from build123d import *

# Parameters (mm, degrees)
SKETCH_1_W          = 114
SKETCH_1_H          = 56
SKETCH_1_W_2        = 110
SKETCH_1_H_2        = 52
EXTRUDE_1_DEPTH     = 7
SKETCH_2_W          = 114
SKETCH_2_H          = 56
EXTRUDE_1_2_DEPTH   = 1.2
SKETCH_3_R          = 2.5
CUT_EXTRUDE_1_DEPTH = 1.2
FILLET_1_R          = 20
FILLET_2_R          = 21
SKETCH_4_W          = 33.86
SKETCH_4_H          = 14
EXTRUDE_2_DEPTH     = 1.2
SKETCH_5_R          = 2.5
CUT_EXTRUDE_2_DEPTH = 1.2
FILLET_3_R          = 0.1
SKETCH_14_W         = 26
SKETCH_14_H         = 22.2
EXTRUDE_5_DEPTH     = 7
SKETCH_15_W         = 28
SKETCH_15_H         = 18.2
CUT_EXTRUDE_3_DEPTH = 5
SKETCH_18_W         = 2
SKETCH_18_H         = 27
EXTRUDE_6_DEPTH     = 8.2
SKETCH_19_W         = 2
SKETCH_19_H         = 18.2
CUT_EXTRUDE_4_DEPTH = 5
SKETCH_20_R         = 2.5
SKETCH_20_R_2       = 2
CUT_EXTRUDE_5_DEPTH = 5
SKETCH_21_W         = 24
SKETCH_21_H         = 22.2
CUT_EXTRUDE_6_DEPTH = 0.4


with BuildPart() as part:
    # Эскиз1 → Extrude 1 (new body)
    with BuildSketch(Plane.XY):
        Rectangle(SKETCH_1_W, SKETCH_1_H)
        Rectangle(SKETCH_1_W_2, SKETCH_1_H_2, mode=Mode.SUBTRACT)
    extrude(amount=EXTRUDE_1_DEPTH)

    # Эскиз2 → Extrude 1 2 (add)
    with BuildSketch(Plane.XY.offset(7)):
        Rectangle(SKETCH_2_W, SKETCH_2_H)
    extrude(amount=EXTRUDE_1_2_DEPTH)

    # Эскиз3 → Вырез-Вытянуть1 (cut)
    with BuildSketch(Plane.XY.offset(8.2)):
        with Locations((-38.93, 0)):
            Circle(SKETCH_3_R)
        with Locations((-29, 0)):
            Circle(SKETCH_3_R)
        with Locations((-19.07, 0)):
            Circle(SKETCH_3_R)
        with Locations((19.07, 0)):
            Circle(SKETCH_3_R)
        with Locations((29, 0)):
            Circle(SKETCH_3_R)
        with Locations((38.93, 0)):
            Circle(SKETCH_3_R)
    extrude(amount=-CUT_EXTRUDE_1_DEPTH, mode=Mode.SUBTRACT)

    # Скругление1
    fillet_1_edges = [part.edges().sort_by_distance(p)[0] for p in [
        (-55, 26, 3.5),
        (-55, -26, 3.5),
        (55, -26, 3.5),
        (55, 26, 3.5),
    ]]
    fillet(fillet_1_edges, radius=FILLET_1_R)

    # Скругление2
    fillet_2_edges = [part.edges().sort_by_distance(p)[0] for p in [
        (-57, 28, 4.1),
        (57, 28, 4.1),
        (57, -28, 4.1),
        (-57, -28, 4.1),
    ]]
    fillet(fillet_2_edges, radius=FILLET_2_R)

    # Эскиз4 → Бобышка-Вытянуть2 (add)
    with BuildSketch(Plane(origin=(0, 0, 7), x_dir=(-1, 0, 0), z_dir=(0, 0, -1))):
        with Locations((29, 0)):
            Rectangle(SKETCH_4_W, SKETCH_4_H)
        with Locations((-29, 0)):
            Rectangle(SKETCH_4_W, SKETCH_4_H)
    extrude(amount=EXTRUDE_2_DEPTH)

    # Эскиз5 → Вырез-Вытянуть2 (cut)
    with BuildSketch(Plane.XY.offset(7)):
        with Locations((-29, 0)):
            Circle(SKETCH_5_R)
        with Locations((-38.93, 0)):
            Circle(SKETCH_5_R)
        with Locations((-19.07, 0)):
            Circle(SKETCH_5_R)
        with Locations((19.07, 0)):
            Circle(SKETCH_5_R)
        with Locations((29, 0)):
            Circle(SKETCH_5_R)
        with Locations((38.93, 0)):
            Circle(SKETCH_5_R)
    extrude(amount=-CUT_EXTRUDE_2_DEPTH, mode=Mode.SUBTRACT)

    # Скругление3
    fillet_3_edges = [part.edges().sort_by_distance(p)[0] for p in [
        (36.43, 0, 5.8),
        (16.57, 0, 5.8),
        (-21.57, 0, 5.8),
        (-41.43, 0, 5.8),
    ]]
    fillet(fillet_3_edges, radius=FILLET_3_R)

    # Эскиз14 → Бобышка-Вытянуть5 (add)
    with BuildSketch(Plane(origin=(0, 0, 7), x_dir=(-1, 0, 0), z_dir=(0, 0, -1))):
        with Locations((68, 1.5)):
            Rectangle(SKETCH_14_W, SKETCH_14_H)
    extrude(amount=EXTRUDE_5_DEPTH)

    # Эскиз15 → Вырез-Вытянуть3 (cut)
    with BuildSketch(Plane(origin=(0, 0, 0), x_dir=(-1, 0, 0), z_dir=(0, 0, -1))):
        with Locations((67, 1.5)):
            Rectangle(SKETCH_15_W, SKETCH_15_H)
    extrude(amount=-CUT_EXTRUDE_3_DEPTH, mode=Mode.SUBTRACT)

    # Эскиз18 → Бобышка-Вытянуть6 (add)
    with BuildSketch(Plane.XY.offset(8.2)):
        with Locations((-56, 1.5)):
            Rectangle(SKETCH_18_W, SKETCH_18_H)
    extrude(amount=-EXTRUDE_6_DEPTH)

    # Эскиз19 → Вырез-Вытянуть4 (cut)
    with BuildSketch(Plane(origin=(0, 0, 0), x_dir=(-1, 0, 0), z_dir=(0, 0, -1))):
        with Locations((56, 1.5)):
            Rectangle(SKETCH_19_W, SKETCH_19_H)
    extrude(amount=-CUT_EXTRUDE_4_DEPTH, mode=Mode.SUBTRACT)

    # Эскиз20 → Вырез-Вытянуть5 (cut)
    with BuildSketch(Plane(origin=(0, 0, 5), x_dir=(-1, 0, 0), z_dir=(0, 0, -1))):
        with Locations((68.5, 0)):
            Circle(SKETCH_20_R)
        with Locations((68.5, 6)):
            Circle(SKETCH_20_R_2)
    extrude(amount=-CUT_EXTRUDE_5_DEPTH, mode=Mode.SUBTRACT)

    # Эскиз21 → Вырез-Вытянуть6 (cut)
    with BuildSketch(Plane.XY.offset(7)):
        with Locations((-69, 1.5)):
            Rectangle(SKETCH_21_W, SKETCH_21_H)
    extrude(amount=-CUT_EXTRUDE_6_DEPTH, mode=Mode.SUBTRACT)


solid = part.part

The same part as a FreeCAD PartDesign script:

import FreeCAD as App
import Part
import Sketcher


def edges_at(feature, points):
    """Names of the edges that pass closest to the given points."""
    edges = feature.Shape.Edges
    near = lambda p: min(range(len(edges)), key=lambda i: edges[i].distToShape(Part.Vertex(*p))[0])
    return sorted({f"Edge{near(p) + 1}" for p in points})


def add_polygon(sketch, points):
    """Adds a closed chain of lines whose ends are joined by coincident constraints."""
    first, n = sketch.GeometryCount, len(points)
    for a, b in zip(points, points[1:] + points[:1]):
        sketch.addGeometry(Part.LineSegment(App.Vector(*a, 0), App.Vector(*b, 0)), False)
    for i in range(n):
        sketch.addConstraint(Sketcher.Constraint("Coincident", first + i, 2, first + (i + 1) % n, 1))

doc = App.newDocument("Part")
params = doc.addObject("Spreadsheet::Sheet", "Params")
for row, (alias, value) in enumerate([
    ("sketch1_width", "114 mm"),
    ("sketch1_width2", "110 mm"),
    ("sketch1_height", "56 mm"),
    ("sketch1_height2", "52 mm"),
    ("pad1_length", "7 mm"),
    ("sketch2_width", "114 mm"),
    ("sketch2_height", "56 mm"),
    ("pad2_length", "1.2 mm"),
    ("sketch3_diameter", "5 mm"),
    ("pocket1_length", "1.2 mm"),
    ("fillet_radius", "20 mm"),
    ("fillet2_radius", "21 mm"),
    ("sketch4_height", "14 mm"),
    ("sketch4_width", "33.86 mm"),
    ("pad3_length", "1.2 mm"),
    ("sketch5_diameter", "5 mm"),
    ("pocket2_length", "1.2 mm"),
    ("fillet3_radius", "0.1 mm"),
    ("sketch6_width", "26 mm"),
    ("sketch6_height", "22.2 mm"),
    ("pad4_length", "7 mm"),
    ("sketch7_width", "28 mm"),
    ("sketch7_height", "18.2 mm"),
    ("pocket3_length", "5 mm"),
    ("sketch8_width", "2 mm"),
    ("sketch8_height", "27 mm"),
    ("pad5_length", "8.2 mm"),
    ("sketch9_width", "2 mm"),
    ("sketch9_height", "18.2 mm"),
    ("pocket4_length", "5 mm"),
    ("sketch10_diameter", "5 mm"),
    ("sketch10_diameter2", "4 mm"),
    ("pocket5_length", "5 mm"),
    ("sketch11_width", "24 mm"),
    ("sketch11_height", "22.2 mm"),
    ("pocket6_length", "0.4 mm"),
], start=1):
    params.set(f"A{row}", alias)
    params.set(f"B{row}", "=" + value)
    params.setAlias(f"B{row}", alias)

body = doc.addObject("PartDesign::Body", "Body")

# Sketch on XY plane
sketch1 = body.newObject("Sketcher::SketchObject", "Sketch")
sketch1.AttachmentSupport = (doc.getObject("XY_Plane"), [""])
sketch1.MapMode = "FlatFace"
add_polygon(sketch1, [(-57, 28), (-57, -28), (57, -28), (57, 28)])  # lines 0-3
add_polygon(sketch1, [(55, -26), (-55, -26), (-55, 26), (55, 26)])  # lines 4-7
sketch1.addConstraint([
    Sketcher.Constraint("Vertical", 0),
    Sketcher.Constraint("Horizontal", 1),
    Sketcher.Constraint("Vertical", 2),
    Sketcher.Constraint("Horizontal", 3),
    Sketcher.Constraint("Horizontal", 4),
    Sketcher.Constraint("Vertical", 5),
    Sketcher.Constraint("Horizontal", 6),
    Sketcher.Constraint("Vertical", 7),
    Sketcher.Constraint("Symmetric", 0, 2, 2, 2, -1, 1),
    Sketcher.Constraint("Symmetric", 4, 2, 6, 2, -1, 1),
    Sketcher.Constraint("DistanceX", 1, 1, 1, 2, 114.0),
    Sketcher.Constraint("DistanceX", 4, 2, 4, 1, 110.0),
    Sketcher.Constraint("DistanceY", 0, 2, 0, 1, 56.0),
    Sketcher.Constraint("DistanceY", 5, 1, 5, 2, 52.0),
])
sketch1.setExpression("Constraints[18]", "Params.sketch1_width")
sketch1.setExpression("Constraints[19]", "Params.sketch1_width2")
sketch1.setExpression("Constraints[20]", "Params.sketch1_height")
sketch1.setExpression("Constraints[21]", "Params.sketch1_height2")
pad1 = body.newObject("PartDesign::Pad", "Pad")
pad1.Profile = sketch1
pad1.setExpression("Length", "Params.pad1_length")

# Sketch on XY plane
sketch2 = body.newObject("Sketcher::SketchObject", "Sketch001")
sketch2.AttachmentSupport = (doc.getObject("XY_Plane"), [""])
sketch2.MapMode = "FlatFace"
sketch2.AttachmentOffset = App.Placement(App.Vector(0, 0, 7), App.Rotation())
add_polygon(sketch2, [(-57, 28), (-57, -28), (57, -28), (57, 28)])  # lines 0-3
sketch2.addConstraint([
    Sketcher.Constraint("Vertical", 0),
    Sketcher.Constraint("Horizontal", 1),
    Sketcher.Constraint("Vertical", 2),
    Sketcher.Constraint("Horizontal", 3),
    Sketcher.Constraint("Symmetric", 0, 2, 2, 2, -1, 1),
    Sketcher.Constraint("DistanceX", 1, 1, 1, 2, 114.0),
    Sketcher.Constraint("DistanceY", 0, 2, 0, 1, 56.0),
])
sketch2.setExpression("Constraints[9]", "Params.sketch2_width")
sketch2.setExpression("Constraints[10]", "Params.sketch2_height")
pad2 = body.newObject("PartDesign::Pad", "Pad001")
pad2.Profile = sketch2
pad2.setExpression("Length", "Params.pad2_length")

# Sketch on XY plane
sketch3 = body.newObject("Sketcher::SketchObject", "Sketch002")
sketch3.AttachmentSupport = (doc.getObject("XY_Plane"), [""])
sketch3.MapMode = "FlatFace"
sketch3.AttachmentOffset = App.Placement(App.Vector(0, 0, 8.2), App.Rotation())
sketch3.addGeometry([
    Part.Circle(App.Vector(-38.9, 0, 0), App.Vector(0, 0, 1), 2.5),  # 0
    Part.Circle(App.Vector(-29, 0, 0), App.Vector(0, 0, 1), 2.5),  # 1
    Part.Circle(App.Vector(-19.1, 0, 0), App.Vector(0, 0, 1), 2.5),  # 2
    Part.Circle(App.Vector(19.1, 0, 0), App.Vector(0, 0, 1), 2.5),  # 3
    Part.Circle(App.Vector(29, 0, 0), App.Vector(0, 0, 1), 2.5),  # 4
    Part.Circle(App.Vector(38.9, 0, 0), App.Vector(0, 0, 1), 2.5),  # 5
], False)
sketch3.addConstraint([
    Sketcher.Constraint("Equal", 0, 1),
    Sketcher.Constraint("Equal", 1, 2),
    Sketcher.Constraint("Equal", 2, 3),
    Sketcher.Constraint("Equal", 3, 4),
    Sketcher.Constraint("Equal", 4, 5),
    Sketcher.Constraint("Symmetric", 2, 3, 3, 3, -1, 1),
    Sketcher.Constraint("Symmetric", 1, 3, 4, 3, -1, 1),
    Sketcher.Constraint("Symmetric", 0, 3, 5, 3, -1, 1),
    Sketcher.Constraint("PointOnObject", 0, 3, -1),
    Sketcher.Constraint("PointOnObject", 1, 3, -1),
    Sketcher.Constraint("PointOnObject", 2, 3, -1),
    Sketcher.Constraint("Diameter", 0, 5.0),
    Sketcher.Constraint("DistanceX", 1, 3, -1, 1, 29.0),
    Sketcher.Constraint("DistanceX", 0, 3, 3, 3, 58.0),
    Sketcher.Constraint("DistanceX", 0, 3, -1, 1, 38.93),
])
sketch3.setExpression("Constraints[11]", "Params.sketch3_diameter")
pocket1 = body.newObject("PartDesign::Pocket", "Pocket")
pocket1.Profile = sketch3
pocket1.setExpression("Length", "Params.pocket1_length")
doc.recompute()

fillet = body.newObject("PartDesign::Fillet", "Fillet")
fillet.Base = (pocket1, edges_at(pocket1, [
    (-55, 26, 3.5),
    (-55, -26, 3.5),
    (55, -26, 3.5),
    (55, 26, 3.5),
]))
fillet.setExpression("Radius", "Params.fillet_radius")
doc.recompute()

fillet2 = body.newObject("PartDesign::Fillet", "Fillet001")
fillet2.Base = (fillet, edges_at(fillet, [
    (-57, 28, 4.1),
    (57, 28, 4.1),
    (57, -28, 4.1),
    (-57, -28, 4.1),
]))
fillet2.setExpression("Radius", "Params.fillet2_radius")

# Sketch on XY plane
sketch4 = body.newObject("Sketcher::SketchObject", "Sketch003")
sketch4.AttachmentSupport = (doc.getObject("XY_Plane"), [""])
sketch4.MapMode = "FlatFace"
sketch4.AttachmentOffset = App.Placement(App.Vector(0, 0, 7), App.Rotation())
add_polygon(sketch4, [(-12, 7), (-12, -7), (-46, -7), (-46, 7)])  # lines 0-3
add_polygon(sketch4, [(46, 7), (46, -7), (12, -7), (12, 7)])  # lines 4-7
sketch4.addConstraint([
    Sketcher.Constraint("Vertical", 0),
    Sketcher.Constraint("Horizontal", 1),
    Sketcher.Constraint("Vertical", 2),
    Sketcher.Constraint("Horizontal", 3),
    Sketcher.Constraint("Vertical", 4),
    Sketcher.Constraint("Horizontal", 5),
    Sketcher.Constraint("Vertical", 6),
    Sketcher.Constraint("Horizontal", 7),
    Sketcher.Constraint("Symmetric", 2, 2, 4, 2, -1, 1),
    Sketcher.Constraint("Symmetric", 0, 2, 6, 2, -1, 1),
    Sketcher.Constraint("Horizontal", 1, 2, 4, 2),
    Sketcher.Constraint("DistanceY", 0, 2, 0, 1, 14.0),
    Sketcher.Constraint("DistanceX", 0, 2, 4, 2, 58.0),
    Sketcher.Constraint("DistanceX", 1, 2, 1, 1, 33.86),
])
sketch4.setExpression("Constraints[19]", "Params.sketch4_height")
sketch4.setExpression("Constraints[21]", "Params.sketch4_width")
pad3 = body.newObject("PartDesign::Pad", "Pad002")
pad3.Profile = sketch4
pad3.setExpression("Length", "Params.pad3_length")
pad3.Reversed = True

# Sketch on XY plane
sketch5 = body.newObject("Sketcher::SketchObject", "Sketch004")
sketch5.AttachmentSupport = (doc.getObject("XY_Plane"), [""])
sketch5.MapMode = "FlatFace"
sketch5.AttachmentOffset = App.Placement(App.Vector(0, 0, 7), App.Rotation())
sketch5.addGeometry([
    Part.Circle(App.Vector(-29, 0, 0), App.Vector(0, 0, 1), 2.5),  # 0
    Part.Circle(App.Vector(-38.9, 0, 0), App.Vector(0, 0, 1), 2.5),  # 1
    Part.Circle(App.Vector(-19.1, 0, 0), App.Vector(0, 0, 1), 2.5),  # 2
    Part.Circle(App.Vector(19.1, 0, 0), App.Vector(0, 0, 1), 2.5),  # 3
    Part.Circle(App.Vector(29, 0, 0), App.Vector(0, 0, 1), 2.5),  # 4
    Part.Circle(App.Vector(38.9, 0, 0), App.Vector(0, 0, 1), 2.5),  # 5
], False)
sketch5.addConstraint([
    Sketcher.Constraint("Equal", 0, 1),
    Sketcher.Constraint("Equal", 1, 2),
    Sketcher.Constraint("Equal", 2, 3),
    Sketcher.Constraint("Equal", 3, 4),
    Sketcher.Constraint("Equal", 4, 5),
    Sketcher.Constraint("Symmetric", 2, 3, 3, 3, -1, 1),
    Sketcher.Constraint("Symmetric", 0, 3, 4, 3, -1, 1),
    Sketcher.Constraint("Symmetric", 1, 3, 5, 3, -1, 1),
    Sketcher.Constraint("PointOnObject", 0, 3, -1),
    Sketcher.Constraint("PointOnObject", 1, 3, -1),
    Sketcher.Constraint("PointOnObject", 2, 3, -1),
    Sketcher.Constraint("Diameter", 0, 5.0),
    Sketcher.Constraint("DistanceX", 0, 3, -1, 1, 29.0),
    Sketcher.Constraint("DistanceX", 1, 3, 3, 3, 58.0),
    Sketcher.Constraint("DistanceX", 1, 3, -1, 1, 38.93),
])
sketch5.setExpression("Constraints[11]", "Params.sketch5_diameter")
pocket2 = body.newObject("PartDesign::Pocket", "Pocket001")
pocket2.Profile = sketch5
pocket2.setExpression("Length", "Params.pocket2_length")
doc.recompute()

fillet3 = body.newObject("PartDesign::Fillet", "Fillet002")
fillet3.Base = (pocket2, edges_at(pocket2, [
    (36.43, 0, 5.8),
    (16.57, 0, 5.8),
    (-21.57, 0, 5.8),
    (-41.43, 0, 5.8),
]))
fillet3.setExpression("Radius", "Params.fillet3_radius")

# Sketch on XY plane
sketch6 = body.newObject("Sketcher::SketchObject", "Sketch005")
sketch6.AttachmentSupport = (doc.getObject("XY_Plane"), [""])
sketch6.MapMode = "FlatFace"
sketch6.AttachmentOffset = App.Placement(App.Vector(0, 0, 7), App.Rotation())
add_polygon(sketch6, [(-55, 13), (-55, -10), (-81, -10), (-81, 13)])  # lines 0-3
sketch6.addConstraint([
    Sketcher.Constraint("Vertical", 0),
    Sketcher.Constraint("Horizontal", 1),
    Sketcher.Constraint("Vertical", 2),
    Sketcher.Constraint("Horizontal", 3),
    Sketcher.Constraint("DistanceX", 1, 2, 1, 1, 26.0),
    Sketcher.Constraint("DistanceY", 0, 2, 0, 1, 22.2),
    Sketcher.Constraint("DistanceX", 0, 2, -1, 1, 55.0),
    Sketcher.Constraint("DistanceY", 0, 2, -1, 1, 9.6),
])
sketch6.setExpression("Constraints[8]", "Params.sketch6_width")
sketch6.setExpression("Constraints[9]", "Params.sketch6_height")
pad4 = body.newObject("PartDesign::Pad", "Pad003")
pad4.Profile = sketch6
pad4.setExpression("Length", "Params.pad4_length")
pad4.Reversed = True

# Sketch on XY plane
sketch7 = body.newObject("Sketcher::SketchObject", "Sketch006")
sketch7.AttachmentSupport = (doc.getObject("XY_Plane"), [""])
sketch7.MapMode = "FlatFace"
add_polygon(sketch7, [(-53, 11), (-53, -8), (-81, -8), (-81, 11)])  # lines 0-3
sketch7.addConstraint([
    Sketcher.Constraint("Vertical", 0),
    Sketcher.Constraint("Horizontal", 1),
    Sketcher.Constraint("Vertical", 2),
    Sketcher.Constraint("Horizontal", 3),
    Sketcher.Constraint("DistanceX", 1, 2, 1, 1, 28.0),
    Sketcher.Constraint("DistanceY", 0, 2, 0, 1, 18.2),
    Sketcher.Constraint("DistanceX", 0, 2, -1, 1, 53.0),
    Sketcher.Constraint("DistanceY", 0, 2, -1, 1, 7.6),
])
sketch7.setExpression("Constraints[8]", "Params.sketch7_width")
sketch7.setExpression("Constraints[9]", "Params.sketch7_height")
pocket3 = body.newObject("PartDesign::Pocket", "Pocket002")
pocket3.Profile = sketch7
pocket3.setExpression("Length", "Params.pocket3_length")
pocket3.Reversed = True

# Sketch on XY plane
sketch8 = body.newObject("Sketcher::SketchObject", "Sketch007")
sketch8.AttachmentSupport = (doc.getObject("XY_Plane"), [""])
sketch8.MapMode = "FlatFace"
sketch8.AttachmentOffset = App.Placement(App.Vector(0, 0, 8.2), App.Rotation())
add_polygon(sketch8, [(-57, 15), (-57, -12), (-55, -12), (-55, 15)])  # lines 0-3
sketch8.addConstraint([
    Sketcher.Constraint("Vertical", 0),
    Sketcher.Constraint("Horizontal", 1),
    Sketcher.Constraint("Vertical", 2),
    Sketcher.Constraint("Horizontal", 3),
    Sketcher.Constraint("DistanceX", 1, 1, 1, 2, 2.0),
    Sketcher.Constraint("DistanceY", 0, 2, 0, 1, 27.0),
    Sketcher.Constraint("DistanceX", 0, 2, -1, 1, 57.0),
    Sketcher.Constraint("DistanceY", 0, 2, -1, 1, 12.0),
])
sketch8.setExpression("Constraints[8]", "Params.sketch8_width")
sketch8.setExpression("Constraints[9]", "Params.sketch8_height")
pad5 = body.newObject("PartDesign::Pad", "Pad004")
pad5.Profile = sketch8
pad5.setExpression("Length", "Params.pad5_length")
pad5.Reversed = True

# Sketch on XY plane
sketch9 = body.newObject("Sketcher::SketchObject", "Sketch008")
sketch9.AttachmentSupport = (doc.getObject("XY_Plane"), [""])
sketch9.MapMode = "FlatFace"
add_polygon(sketch9, [(-55, 10.6), (-55, -7.6), (-57, -7.6), (-57, 10.6)])  # lines 0-3
sketch9.addConstraint([
    Sketcher.Constraint("Vertical", 0),
    Sketcher.Constraint("Horizontal", 1),
    Sketcher.Constraint("Vertical", 2),
    Sketcher.Constraint("Horizontal", 3),
    Sketcher.Constraint("DistanceX", 1, 2, 1, 1, 2.0),
    Sketcher.Constraint("DistanceY", 0, 2, 0, 1, 18.2),
    Sketcher.Constraint("DistanceX", 0, 2, -1, 1, 55.0),
    Sketcher.Constraint("DistanceY", 0, 2, -1, 1, 7.6),
])
sketch9.setExpression("Constraints[8]", "Params.sketch9_width")
sketch9.setExpression("Constraints[9]", "Params.sketch9_height")
pocket4 = body.newObject("PartDesign::Pocket", "Pocket003")
pocket4.Profile = sketch9
pocket4.setExpression("Length", "Params.pocket4_length")
pocket4.Reversed = True

# Sketch on XY plane
sketch10 = body.newObject("Sketcher::SketchObject", "Sketch009")
sketch10.AttachmentSupport = (doc.getObject("XY_Plane"), [""])
sketch10.MapMode = "FlatFace"
sketch10.AttachmentOffset = App.Placement(App.Vector(0, 0, 5), App.Rotation())
sketch10.addGeometry([
    Part.Circle(App.Vector(-68.5, 0, 0), App.Vector(0, 0, 1), 2.5),
    Part.Circle(App.Vector(-68.5, 6, 0), App.Vector(0, 0, 1), 2),
], False)
sketch10.addConstraint([
    Sketcher.Constraint("PointOnObject", 0, 3, -1),
    Sketcher.Constraint("Vertical", 0, 3, 1, 3),
    Sketcher.Constraint("Diameter", 0, 5.0),
    Sketcher.Constraint("Diameter", 1, 4.0),
    Sketcher.Constraint("DistanceY", -1, 1, 1, 3, 6.0),
    Sketcher.Constraint("DistanceX", 0, 3, -1, 1, 68.5),
])
sketch10.setExpression("Constraints[2]", "Params.sketch10_diameter")
sketch10.setExpression("Constraints[3]", "Params.sketch10_diameter2")
pocket5 = body.newObject("PartDesign::Pocket", "Pocket004")
pocket5.Profile = sketch10
pocket5.setExpression("Length", "Params.pocket5_length")
pocket5.Reversed = True

# Sketch on XY plane
sketch11 = body.newObject("Sketcher::SketchObject", "Sketch010")
sketch11.AttachmentSupport = (doc.getObject("XY_Plane"), [""])
sketch11.MapMode = "FlatFace"
sketch11.AttachmentOffset = App.Placement(App.Vector(0, 0, 7), App.Rotation())
add_polygon(sketch11, [(-81, 13), (-81, -10), (-57, -10), (-57, 13)])  # lines 0-3
sketch11.addConstraint([
    Sketcher.Constraint("Vertical", 0),
    Sketcher.Constraint("Horizontal", 1),
    Sketcher.Constraint("Vertical", 2),
    Sketcher.Constraint("Horizontal", 3),
    Sketcher.Constraint("DistanceX", 1, 1, 1, 2, 24.0),
    Sketcher.Constraint("DistanceY", 0, 2, 0, 1, 22.2),
    Sketcher.Constraint("DistanceX", 0, 2, -1, 1, 81.0),
    Sketcher.Constraint("DistanceY", 0, 2, -1, 1, 9.6),
])
sketch11.setExpression("Constraints[8]", "Params.sketch11_width")
sketch11.setExpression("Constraints[9]", "Params.sketch11_height")
pocket6 = body.newObject("PartDesign::Pocket", "Pocket005")
pocket6.Profile = sketch11
pocket6.setExpression("Length", "Params.pocket6_length")

doc.recompute()
